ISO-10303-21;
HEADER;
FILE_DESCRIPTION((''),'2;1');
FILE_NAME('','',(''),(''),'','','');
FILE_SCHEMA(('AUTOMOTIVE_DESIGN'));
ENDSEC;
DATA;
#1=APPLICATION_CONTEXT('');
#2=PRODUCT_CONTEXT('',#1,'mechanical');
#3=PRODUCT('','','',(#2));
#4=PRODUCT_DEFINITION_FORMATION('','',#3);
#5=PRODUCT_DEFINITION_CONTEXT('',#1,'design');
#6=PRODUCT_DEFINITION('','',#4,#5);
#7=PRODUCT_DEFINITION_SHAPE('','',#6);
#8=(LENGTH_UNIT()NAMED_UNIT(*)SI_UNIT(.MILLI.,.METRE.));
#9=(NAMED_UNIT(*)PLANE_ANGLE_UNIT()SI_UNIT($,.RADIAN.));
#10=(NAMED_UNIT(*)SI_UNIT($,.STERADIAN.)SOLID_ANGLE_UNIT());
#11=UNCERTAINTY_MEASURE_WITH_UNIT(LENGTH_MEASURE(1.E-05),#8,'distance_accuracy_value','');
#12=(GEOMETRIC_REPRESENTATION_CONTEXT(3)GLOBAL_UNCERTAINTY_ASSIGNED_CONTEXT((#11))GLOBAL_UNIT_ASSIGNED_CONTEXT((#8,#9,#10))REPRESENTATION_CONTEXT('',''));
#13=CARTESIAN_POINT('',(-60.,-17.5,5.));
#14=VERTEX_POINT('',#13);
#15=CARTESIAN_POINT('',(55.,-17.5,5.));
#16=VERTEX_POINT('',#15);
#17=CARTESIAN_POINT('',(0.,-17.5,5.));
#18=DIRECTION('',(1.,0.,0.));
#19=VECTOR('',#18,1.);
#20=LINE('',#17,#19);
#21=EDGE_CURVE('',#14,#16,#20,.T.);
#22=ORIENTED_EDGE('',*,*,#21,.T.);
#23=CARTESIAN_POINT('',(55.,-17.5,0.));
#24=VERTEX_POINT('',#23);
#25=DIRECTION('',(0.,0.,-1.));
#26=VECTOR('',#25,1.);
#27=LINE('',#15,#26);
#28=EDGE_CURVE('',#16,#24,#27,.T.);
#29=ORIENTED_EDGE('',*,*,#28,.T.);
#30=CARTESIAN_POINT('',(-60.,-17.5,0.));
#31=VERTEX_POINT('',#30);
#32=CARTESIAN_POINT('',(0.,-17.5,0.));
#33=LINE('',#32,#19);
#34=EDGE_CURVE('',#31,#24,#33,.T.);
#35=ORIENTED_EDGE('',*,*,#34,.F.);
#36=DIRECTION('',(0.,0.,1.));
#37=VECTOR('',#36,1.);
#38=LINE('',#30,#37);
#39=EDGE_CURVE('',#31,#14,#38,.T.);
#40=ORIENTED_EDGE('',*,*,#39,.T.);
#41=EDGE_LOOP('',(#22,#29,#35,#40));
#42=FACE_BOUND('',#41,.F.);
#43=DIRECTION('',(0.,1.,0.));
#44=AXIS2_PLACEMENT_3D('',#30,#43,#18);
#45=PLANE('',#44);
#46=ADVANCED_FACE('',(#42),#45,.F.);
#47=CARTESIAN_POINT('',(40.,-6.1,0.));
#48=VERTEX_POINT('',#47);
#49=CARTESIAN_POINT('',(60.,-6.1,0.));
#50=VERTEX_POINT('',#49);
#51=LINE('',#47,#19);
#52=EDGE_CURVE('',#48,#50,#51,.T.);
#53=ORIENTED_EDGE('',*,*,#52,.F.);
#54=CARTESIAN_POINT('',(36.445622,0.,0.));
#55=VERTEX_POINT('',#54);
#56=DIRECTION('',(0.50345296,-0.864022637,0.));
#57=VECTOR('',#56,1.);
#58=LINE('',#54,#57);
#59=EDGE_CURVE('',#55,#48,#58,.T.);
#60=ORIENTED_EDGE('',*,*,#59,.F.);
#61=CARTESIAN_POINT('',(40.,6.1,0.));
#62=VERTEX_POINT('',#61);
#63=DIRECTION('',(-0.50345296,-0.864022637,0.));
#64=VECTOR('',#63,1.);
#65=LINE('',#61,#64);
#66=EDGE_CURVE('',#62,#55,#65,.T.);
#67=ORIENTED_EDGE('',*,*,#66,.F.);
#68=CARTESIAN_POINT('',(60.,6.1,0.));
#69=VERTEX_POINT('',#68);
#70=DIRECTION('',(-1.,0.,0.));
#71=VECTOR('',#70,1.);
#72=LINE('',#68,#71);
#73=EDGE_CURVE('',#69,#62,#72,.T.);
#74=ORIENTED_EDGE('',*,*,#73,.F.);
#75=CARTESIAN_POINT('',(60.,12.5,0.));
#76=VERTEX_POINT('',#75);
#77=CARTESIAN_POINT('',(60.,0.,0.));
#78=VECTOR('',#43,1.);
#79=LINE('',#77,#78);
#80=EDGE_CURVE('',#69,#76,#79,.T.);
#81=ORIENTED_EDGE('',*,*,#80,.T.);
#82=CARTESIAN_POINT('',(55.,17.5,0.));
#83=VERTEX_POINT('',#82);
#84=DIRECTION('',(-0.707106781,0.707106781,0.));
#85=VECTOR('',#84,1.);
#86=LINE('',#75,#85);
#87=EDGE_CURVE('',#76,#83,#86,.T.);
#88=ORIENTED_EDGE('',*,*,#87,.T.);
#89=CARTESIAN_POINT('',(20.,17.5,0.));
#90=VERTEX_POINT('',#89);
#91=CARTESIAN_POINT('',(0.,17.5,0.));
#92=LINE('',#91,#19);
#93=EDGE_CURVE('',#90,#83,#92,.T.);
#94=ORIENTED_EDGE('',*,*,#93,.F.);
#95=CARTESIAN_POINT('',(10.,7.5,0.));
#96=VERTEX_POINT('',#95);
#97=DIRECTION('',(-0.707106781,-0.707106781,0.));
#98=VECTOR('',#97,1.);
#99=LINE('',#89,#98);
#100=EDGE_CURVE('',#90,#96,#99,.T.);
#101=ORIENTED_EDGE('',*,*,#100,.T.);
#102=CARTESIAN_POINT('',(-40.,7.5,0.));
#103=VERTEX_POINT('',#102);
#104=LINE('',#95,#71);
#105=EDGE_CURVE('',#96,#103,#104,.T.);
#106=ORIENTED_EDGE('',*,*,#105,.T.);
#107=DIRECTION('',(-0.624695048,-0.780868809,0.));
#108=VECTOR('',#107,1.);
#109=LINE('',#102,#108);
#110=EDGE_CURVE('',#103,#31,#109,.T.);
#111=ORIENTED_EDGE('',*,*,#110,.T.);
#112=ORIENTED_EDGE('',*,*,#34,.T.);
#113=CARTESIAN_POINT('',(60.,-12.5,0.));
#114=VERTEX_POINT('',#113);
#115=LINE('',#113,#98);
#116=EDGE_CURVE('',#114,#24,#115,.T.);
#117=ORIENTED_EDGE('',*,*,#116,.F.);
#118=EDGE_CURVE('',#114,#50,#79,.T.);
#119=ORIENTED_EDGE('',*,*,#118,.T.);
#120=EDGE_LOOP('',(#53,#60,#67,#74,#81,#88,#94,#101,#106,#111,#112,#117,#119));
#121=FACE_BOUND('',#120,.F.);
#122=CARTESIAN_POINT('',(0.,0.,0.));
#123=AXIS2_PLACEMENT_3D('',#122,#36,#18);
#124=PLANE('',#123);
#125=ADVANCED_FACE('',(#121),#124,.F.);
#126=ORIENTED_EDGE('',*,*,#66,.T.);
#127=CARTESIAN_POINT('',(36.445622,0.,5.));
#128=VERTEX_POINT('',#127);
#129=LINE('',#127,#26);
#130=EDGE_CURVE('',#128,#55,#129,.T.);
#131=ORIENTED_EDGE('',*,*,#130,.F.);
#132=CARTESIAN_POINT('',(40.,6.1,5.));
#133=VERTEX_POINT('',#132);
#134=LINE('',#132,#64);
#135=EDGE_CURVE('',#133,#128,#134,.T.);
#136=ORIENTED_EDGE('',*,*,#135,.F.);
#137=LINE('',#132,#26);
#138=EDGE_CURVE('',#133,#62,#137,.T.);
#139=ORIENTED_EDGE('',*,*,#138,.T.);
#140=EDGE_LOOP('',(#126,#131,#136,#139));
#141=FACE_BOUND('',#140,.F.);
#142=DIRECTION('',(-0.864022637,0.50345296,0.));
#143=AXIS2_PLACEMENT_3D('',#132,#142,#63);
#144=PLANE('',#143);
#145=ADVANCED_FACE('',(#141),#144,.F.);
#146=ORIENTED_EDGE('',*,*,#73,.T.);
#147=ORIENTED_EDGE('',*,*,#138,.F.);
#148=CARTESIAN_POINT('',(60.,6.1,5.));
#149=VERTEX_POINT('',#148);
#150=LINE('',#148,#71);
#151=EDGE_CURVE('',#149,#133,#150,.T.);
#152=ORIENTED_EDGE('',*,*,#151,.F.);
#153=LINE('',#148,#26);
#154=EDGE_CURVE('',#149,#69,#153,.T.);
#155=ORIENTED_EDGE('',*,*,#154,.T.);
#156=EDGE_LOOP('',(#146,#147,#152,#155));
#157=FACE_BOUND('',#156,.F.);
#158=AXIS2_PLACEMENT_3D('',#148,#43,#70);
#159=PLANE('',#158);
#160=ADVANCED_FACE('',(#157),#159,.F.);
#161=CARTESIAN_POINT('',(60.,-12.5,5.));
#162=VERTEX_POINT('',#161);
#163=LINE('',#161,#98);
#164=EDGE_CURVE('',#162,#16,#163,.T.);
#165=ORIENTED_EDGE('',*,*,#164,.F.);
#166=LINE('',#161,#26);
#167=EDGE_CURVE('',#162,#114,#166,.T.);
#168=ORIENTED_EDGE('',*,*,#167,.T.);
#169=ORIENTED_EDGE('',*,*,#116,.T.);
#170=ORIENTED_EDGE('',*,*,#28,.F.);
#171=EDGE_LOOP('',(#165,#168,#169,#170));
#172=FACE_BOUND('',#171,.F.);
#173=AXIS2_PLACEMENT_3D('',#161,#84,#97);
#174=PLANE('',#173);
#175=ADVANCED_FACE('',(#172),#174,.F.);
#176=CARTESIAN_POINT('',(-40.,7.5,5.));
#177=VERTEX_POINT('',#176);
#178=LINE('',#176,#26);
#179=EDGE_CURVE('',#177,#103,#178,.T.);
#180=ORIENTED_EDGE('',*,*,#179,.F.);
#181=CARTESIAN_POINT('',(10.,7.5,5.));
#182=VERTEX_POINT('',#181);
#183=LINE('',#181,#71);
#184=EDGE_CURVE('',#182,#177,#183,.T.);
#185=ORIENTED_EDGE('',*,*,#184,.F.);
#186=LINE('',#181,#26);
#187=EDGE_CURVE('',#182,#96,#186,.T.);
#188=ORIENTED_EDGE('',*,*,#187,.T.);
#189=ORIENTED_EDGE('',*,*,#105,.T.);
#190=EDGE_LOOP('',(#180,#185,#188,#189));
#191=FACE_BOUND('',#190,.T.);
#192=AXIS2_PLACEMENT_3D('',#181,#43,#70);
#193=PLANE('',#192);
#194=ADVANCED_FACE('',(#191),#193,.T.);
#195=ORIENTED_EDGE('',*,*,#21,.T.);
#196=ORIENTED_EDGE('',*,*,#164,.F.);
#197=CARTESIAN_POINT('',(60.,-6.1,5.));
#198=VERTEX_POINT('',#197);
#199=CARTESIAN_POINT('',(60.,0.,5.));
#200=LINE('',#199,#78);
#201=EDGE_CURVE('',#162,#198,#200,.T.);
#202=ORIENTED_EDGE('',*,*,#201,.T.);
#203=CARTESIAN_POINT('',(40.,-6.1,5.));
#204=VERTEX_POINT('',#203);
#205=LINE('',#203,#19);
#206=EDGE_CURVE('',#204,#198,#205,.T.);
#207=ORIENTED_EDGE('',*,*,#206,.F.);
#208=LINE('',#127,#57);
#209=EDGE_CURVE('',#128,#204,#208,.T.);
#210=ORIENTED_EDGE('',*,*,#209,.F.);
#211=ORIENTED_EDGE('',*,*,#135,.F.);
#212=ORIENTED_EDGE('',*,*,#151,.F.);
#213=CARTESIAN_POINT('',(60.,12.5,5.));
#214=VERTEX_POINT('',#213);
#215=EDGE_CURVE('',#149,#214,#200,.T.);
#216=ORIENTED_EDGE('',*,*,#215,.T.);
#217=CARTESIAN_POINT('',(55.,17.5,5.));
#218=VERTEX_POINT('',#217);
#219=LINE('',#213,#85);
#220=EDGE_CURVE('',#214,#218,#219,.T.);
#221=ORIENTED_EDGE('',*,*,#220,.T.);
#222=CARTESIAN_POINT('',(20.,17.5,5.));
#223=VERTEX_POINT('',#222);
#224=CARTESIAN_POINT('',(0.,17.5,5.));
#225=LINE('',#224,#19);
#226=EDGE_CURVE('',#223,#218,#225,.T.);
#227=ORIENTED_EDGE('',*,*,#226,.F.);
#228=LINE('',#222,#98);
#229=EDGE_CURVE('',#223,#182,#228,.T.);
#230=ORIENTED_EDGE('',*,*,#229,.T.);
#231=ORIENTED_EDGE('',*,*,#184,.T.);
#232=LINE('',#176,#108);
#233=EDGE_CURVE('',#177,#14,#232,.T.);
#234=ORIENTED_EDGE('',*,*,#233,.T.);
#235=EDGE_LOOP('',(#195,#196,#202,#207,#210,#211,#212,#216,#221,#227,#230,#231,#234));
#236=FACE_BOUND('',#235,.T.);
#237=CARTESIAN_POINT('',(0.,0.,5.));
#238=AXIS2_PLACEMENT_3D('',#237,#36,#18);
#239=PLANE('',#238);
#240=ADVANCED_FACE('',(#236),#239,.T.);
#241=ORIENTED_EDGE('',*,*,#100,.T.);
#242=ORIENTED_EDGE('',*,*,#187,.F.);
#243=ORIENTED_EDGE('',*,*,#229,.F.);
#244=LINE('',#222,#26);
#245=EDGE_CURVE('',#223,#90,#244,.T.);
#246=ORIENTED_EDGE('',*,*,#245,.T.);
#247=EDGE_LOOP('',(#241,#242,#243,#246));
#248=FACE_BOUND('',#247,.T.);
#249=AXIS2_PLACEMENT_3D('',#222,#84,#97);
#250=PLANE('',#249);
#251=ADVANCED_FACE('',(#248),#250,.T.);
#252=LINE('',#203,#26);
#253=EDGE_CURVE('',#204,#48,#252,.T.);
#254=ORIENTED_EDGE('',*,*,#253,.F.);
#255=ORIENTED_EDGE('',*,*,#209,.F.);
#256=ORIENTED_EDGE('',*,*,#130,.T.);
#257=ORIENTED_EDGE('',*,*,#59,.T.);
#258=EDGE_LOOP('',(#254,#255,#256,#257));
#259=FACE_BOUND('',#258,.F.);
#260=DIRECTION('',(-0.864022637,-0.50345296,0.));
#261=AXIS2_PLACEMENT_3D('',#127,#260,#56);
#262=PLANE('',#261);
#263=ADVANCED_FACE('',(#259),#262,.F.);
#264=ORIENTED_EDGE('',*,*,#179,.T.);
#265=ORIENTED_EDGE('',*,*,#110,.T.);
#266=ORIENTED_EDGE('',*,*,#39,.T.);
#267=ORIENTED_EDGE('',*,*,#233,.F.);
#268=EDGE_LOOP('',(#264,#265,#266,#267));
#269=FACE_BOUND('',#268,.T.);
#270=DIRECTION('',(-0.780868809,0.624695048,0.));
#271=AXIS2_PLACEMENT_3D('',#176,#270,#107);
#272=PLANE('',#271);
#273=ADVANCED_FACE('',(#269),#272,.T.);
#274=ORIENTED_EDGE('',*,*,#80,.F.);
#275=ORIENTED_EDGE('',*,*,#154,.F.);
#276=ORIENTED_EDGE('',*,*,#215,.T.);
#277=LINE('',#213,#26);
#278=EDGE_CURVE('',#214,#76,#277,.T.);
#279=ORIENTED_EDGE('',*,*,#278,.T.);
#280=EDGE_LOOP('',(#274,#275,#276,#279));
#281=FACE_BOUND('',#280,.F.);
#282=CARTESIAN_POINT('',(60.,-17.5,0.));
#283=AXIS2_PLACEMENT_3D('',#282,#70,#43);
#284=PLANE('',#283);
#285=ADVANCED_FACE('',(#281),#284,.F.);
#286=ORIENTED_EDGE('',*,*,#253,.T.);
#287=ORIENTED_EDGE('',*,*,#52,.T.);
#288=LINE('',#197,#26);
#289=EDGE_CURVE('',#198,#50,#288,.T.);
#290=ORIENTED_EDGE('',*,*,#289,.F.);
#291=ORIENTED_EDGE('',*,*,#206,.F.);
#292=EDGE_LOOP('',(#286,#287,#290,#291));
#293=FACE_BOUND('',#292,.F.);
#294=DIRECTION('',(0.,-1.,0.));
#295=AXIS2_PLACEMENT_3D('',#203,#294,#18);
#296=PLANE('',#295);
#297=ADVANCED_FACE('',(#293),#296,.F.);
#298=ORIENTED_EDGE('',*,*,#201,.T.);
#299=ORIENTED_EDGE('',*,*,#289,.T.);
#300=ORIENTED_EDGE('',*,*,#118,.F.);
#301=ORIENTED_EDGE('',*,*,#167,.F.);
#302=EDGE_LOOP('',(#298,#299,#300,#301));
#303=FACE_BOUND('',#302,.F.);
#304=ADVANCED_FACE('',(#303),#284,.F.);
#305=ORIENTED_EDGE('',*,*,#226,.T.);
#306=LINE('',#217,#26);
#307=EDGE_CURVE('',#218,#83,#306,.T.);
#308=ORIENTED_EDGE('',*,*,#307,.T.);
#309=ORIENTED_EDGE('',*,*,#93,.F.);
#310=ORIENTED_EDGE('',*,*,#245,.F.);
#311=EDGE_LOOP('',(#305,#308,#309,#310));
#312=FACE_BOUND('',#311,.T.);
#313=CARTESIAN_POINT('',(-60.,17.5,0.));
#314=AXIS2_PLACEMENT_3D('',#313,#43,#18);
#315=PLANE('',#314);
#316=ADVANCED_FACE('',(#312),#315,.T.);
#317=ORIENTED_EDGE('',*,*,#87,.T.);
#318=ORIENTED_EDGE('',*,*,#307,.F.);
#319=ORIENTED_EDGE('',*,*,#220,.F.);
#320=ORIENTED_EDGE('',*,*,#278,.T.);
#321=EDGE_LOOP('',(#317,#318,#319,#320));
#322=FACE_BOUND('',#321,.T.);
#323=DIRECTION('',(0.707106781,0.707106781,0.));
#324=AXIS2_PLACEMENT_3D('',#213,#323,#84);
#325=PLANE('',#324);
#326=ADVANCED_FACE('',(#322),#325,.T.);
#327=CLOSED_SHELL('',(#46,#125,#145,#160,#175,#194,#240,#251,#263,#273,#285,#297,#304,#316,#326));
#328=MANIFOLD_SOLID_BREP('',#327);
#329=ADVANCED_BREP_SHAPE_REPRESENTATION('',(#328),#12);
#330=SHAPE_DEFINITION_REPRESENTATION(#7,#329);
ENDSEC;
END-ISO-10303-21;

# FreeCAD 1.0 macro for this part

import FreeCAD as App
import Part
import Sketcher

doc = App.newDocument("Part")
body = doc.addObject("PartDesign::Body", "Body")

sketch1 = body.newObject("Sketcher::SketchObject", "Sketch")
sketch1.AttachmentSupport = (doc.getObject("XY_Plane"), [""])
sketch1.MapMode = "FlatFace"
sketch1.addGeometry([
    Part.LineSegment(App.Vector(-60, 18, 0), App.Vector(-60, -18, 0)),
    Part.LineSegment(App.Vector(-60, -18, 0), App.Vector(60, -18, 0)),
    Part.LineSegment(App.Vector(60, -18, 0), App.Vector(60, 18, 0)),
    Part.LineSegment(App.Vector(60, 18, 0), App.Vector(-60, 18, 0)),
], False)
sketch1.addConstraint([
    Sketcher.Constraint("Coincident", 0, 2, 1, 1),
    Sketcher.Constraint("Coincident", 1, 2, 2, 1),
    Sketcher.Constraint("Coincident", 2, 2, 3, 1),
    Sketcher.Constraint("Coincident", 3, 2, 0, 1),
    Sketcher.Constraint("Vertical", 0),
    Sketcher.Constraint("Horizontal", 1),
    Sketcher.Constraint("Vertical", 2),
    Sketcher.Constraint("Horizontal", 3),
    Sketcher.Constraint("Symmetric", 0, 2, 2, 2, -1, 1),
    Sketcher.Constraint("DistanceX", 1, 1, 1, 2, 120.0),
    Sketcher.Constraint("DistanceY", 0, 2, 0, 1, 35.0),
])
pad1 = body.newObject("PartDesign::Pad", "Pad")
pad1.Profile = sketch1
pad1.Length = 5

sketch2 = body.newObject("Sketcher::SketchObject", "Sketch001")
sketch2.AttachmentSupport = (doc.getObject("XY_Plane"), [""])
sketch2.MapMode = "FlatFace"
sketch2.AttachmentOffset = App.Placement(App.Vector(0, 0, 5), App.Rotation())
sketch2.addGeometry([
    Part.LineSegment(App.Vector(40, -6, 0), App.Vector(60, -6, 0)),
    Part.LineSegment(App.Vector(60, -6, 0), App.Vector(60, 6, 0)),
    Part.LineSegment(App.Vector(60, 6, 0), App.Vector(40, 6, 0)),
    Part.LineSegment(App.Vector(40, 6, 0), App.Vector(36, 0, 0)),
    Part.LineSegment(App.Vector(36, 0, 0), App.Vector(40, -6, 0)),
], False)
sketch2.addConstraint([
    Sketcher.Constraint("Coincident", 0, 2, 1, 1),
    Sketcher.Constraint("Coincident", 1, 2, 2, 1),
    Sketcher.Constraint("Coincident", 2, 2, 3, 1),
    Sketcher.Constraint("Coincident", 3, 2, 4, 1),
    Sketcher.Constraint("Coincident", 4, 2, 0, 1),
    Sketcher.Constraint("Horizontal", 0),
    Sketcher.Constraint("Vertical", 1),
    Sketcher.Constraint("Horizontal", 2),
    Sketcher.Constraint("Symmetric", 2, 2, 4, 2, -1),
    Sketcher.Constraint("PointOnObject", 3, 2, -1),
    Sketcher.Constraint("DistanceX", 0, 1, 0, 2, 20.0),
    Sketcher.Constraint("DistanceY", 1, 1, 1, 2, 12.2),
    Sketcher.Constraint("DistanceX", -1, 1, 0, 2, 60.0),
    Sketcher.Constraint("Distance", 3, 7.06),
])
pocket1 = body.newObject("PartDesign::Pocket", "Pocket")
pocket1.Profile = sketch2
pocket1.Length = 5

sketch3 = body.newObject("Sketcher::SketchObject", "Sketch002")
sketch3.AttachmentSupport = (doc.getObject("XY_Plane"), [""])
sketch3.MapMode = "FlatFace"
sketch3.AttachmentOffset = App.Placement(App.Vector(0, 0, 5), App.Rotation())
sketch3.addGeometry([
    Part.LineSegment(App.Vector(10, 8, 0), App.Vector(20, 18, 0)),
    Part.LineSegment(App.Vector(20, 18, 0), App.Vector(-60, 18, 0)),
    Part.LineSegment(App.Vector(-60, 18, 0), App.Vector(-60, -18, 0)),
    Part.LineSegment(App.Vector(-60, -18, 0), App.Vector(-40, 8, 0)),
    Part.LineSegment(App.Vector(-40, 8, 0), App.Vector(10, 8, 0)),
    Part.LineSegment(App.Vector(60, 12, 0), App.Vector(60, 18, 0)),
    Part.LineSegment(App.Vector(60, 18, 0), App.Vector(55, 18, 0)),
    Part.LineSegment(App.Vector(55, 18, 0), App.Vector(60, 12, 0)),
    Part.LineSegment(App.Vector(60, -18, 0), App.Vector(60, -12, 0)),
    Part.LineSegment(App.Vector(60, -12, 0), App.Vector(55, -18, 0)),
    Part.LineSegment(App.Vector(55, -18, 0), App.Vector(60, -18, 0)),
], False)
sketch3.addConstraint([
    Sketcher.Constraint("Coincident", 0, 2, 1, 1),
    Sketcher.Constraint("Coincident", 1, 2, 2, 1),
    Sketcher.Constraint("Coincident", 2, 2, 3, 1),
    Sketcher.Constraint("Coincident", 3, 2, 4, 1),
    Sketcher.Constraint("Coincident", 4, 2, 0, 1),
    Sketcher.Constraint("Coincident", 5, 2, 6, 1),
    Sketcher.Constraint("Coincident", 6, 2, 7, 1),
    Sketcher.Constraint("Coincident", 7, 2, 5, 1),
    Sketcher.Constraint("Coincident", 8, 2, 9, 1),
    Sketcher.Constraint("Coincident", 9, 2, 10, 1),
    Sketcher.Constraint("Coincident", 10, 2, 8, 1),
    Sketcher.Constraint("Horizontal", 1),
    Sketcher.Constraint("Vertical", 2),
    Sketcher.Constraint("Horizontal", 4),
    Sketcher.Constraint("Vertical", 5),
    Sketcher.Constraint("Horizontal", 6),
    Sketcher.Constraint("Vertical", 8),
    Sketcher.Constraint("Horizontal", 10),
    Sketcher.Constraint("Symmetric", 2, 2, 5, 2, -1, 1),
    Sketcher.Constraint("Symmetric", 1, 2, 10, 2, -1, 1),
    Sketcher.Constraint("Symmetric", 6, 2, 9, 2, -1),
    Sketcher.Constraint("Perpendicular", 0, 7),
    Sketcher.Constraint("Perpendicular", 7, 9),
    Sketcher.Constraint("Equal", 10, 5),
    Sketcher.Constraint("DistanceX", 1, 2, 1, 1, 80.0),
    Sketcher.Constraint("DistanceX", 4, 1, 4, 2, 50.0),
    Sketcher.Constraint("DistanceX", 6, 2, 6, 1, 5.0),
    Sketcher.Constraint("DistanceY", 2, 2, 2, 1, 35.0),
    Sketcher.Constraint("DistanceX", -1, 1, 0, 2, 20.0),
    Sketcher.Constraint("DistanceX", 3, 2, -1, 1, 40.0),
])
pocket2 = body.newObject("PartDesign::Pocket", "Pocket001")
pocket2.Profile = sketch3
pocket2.Length = 5

doc.recompute()
